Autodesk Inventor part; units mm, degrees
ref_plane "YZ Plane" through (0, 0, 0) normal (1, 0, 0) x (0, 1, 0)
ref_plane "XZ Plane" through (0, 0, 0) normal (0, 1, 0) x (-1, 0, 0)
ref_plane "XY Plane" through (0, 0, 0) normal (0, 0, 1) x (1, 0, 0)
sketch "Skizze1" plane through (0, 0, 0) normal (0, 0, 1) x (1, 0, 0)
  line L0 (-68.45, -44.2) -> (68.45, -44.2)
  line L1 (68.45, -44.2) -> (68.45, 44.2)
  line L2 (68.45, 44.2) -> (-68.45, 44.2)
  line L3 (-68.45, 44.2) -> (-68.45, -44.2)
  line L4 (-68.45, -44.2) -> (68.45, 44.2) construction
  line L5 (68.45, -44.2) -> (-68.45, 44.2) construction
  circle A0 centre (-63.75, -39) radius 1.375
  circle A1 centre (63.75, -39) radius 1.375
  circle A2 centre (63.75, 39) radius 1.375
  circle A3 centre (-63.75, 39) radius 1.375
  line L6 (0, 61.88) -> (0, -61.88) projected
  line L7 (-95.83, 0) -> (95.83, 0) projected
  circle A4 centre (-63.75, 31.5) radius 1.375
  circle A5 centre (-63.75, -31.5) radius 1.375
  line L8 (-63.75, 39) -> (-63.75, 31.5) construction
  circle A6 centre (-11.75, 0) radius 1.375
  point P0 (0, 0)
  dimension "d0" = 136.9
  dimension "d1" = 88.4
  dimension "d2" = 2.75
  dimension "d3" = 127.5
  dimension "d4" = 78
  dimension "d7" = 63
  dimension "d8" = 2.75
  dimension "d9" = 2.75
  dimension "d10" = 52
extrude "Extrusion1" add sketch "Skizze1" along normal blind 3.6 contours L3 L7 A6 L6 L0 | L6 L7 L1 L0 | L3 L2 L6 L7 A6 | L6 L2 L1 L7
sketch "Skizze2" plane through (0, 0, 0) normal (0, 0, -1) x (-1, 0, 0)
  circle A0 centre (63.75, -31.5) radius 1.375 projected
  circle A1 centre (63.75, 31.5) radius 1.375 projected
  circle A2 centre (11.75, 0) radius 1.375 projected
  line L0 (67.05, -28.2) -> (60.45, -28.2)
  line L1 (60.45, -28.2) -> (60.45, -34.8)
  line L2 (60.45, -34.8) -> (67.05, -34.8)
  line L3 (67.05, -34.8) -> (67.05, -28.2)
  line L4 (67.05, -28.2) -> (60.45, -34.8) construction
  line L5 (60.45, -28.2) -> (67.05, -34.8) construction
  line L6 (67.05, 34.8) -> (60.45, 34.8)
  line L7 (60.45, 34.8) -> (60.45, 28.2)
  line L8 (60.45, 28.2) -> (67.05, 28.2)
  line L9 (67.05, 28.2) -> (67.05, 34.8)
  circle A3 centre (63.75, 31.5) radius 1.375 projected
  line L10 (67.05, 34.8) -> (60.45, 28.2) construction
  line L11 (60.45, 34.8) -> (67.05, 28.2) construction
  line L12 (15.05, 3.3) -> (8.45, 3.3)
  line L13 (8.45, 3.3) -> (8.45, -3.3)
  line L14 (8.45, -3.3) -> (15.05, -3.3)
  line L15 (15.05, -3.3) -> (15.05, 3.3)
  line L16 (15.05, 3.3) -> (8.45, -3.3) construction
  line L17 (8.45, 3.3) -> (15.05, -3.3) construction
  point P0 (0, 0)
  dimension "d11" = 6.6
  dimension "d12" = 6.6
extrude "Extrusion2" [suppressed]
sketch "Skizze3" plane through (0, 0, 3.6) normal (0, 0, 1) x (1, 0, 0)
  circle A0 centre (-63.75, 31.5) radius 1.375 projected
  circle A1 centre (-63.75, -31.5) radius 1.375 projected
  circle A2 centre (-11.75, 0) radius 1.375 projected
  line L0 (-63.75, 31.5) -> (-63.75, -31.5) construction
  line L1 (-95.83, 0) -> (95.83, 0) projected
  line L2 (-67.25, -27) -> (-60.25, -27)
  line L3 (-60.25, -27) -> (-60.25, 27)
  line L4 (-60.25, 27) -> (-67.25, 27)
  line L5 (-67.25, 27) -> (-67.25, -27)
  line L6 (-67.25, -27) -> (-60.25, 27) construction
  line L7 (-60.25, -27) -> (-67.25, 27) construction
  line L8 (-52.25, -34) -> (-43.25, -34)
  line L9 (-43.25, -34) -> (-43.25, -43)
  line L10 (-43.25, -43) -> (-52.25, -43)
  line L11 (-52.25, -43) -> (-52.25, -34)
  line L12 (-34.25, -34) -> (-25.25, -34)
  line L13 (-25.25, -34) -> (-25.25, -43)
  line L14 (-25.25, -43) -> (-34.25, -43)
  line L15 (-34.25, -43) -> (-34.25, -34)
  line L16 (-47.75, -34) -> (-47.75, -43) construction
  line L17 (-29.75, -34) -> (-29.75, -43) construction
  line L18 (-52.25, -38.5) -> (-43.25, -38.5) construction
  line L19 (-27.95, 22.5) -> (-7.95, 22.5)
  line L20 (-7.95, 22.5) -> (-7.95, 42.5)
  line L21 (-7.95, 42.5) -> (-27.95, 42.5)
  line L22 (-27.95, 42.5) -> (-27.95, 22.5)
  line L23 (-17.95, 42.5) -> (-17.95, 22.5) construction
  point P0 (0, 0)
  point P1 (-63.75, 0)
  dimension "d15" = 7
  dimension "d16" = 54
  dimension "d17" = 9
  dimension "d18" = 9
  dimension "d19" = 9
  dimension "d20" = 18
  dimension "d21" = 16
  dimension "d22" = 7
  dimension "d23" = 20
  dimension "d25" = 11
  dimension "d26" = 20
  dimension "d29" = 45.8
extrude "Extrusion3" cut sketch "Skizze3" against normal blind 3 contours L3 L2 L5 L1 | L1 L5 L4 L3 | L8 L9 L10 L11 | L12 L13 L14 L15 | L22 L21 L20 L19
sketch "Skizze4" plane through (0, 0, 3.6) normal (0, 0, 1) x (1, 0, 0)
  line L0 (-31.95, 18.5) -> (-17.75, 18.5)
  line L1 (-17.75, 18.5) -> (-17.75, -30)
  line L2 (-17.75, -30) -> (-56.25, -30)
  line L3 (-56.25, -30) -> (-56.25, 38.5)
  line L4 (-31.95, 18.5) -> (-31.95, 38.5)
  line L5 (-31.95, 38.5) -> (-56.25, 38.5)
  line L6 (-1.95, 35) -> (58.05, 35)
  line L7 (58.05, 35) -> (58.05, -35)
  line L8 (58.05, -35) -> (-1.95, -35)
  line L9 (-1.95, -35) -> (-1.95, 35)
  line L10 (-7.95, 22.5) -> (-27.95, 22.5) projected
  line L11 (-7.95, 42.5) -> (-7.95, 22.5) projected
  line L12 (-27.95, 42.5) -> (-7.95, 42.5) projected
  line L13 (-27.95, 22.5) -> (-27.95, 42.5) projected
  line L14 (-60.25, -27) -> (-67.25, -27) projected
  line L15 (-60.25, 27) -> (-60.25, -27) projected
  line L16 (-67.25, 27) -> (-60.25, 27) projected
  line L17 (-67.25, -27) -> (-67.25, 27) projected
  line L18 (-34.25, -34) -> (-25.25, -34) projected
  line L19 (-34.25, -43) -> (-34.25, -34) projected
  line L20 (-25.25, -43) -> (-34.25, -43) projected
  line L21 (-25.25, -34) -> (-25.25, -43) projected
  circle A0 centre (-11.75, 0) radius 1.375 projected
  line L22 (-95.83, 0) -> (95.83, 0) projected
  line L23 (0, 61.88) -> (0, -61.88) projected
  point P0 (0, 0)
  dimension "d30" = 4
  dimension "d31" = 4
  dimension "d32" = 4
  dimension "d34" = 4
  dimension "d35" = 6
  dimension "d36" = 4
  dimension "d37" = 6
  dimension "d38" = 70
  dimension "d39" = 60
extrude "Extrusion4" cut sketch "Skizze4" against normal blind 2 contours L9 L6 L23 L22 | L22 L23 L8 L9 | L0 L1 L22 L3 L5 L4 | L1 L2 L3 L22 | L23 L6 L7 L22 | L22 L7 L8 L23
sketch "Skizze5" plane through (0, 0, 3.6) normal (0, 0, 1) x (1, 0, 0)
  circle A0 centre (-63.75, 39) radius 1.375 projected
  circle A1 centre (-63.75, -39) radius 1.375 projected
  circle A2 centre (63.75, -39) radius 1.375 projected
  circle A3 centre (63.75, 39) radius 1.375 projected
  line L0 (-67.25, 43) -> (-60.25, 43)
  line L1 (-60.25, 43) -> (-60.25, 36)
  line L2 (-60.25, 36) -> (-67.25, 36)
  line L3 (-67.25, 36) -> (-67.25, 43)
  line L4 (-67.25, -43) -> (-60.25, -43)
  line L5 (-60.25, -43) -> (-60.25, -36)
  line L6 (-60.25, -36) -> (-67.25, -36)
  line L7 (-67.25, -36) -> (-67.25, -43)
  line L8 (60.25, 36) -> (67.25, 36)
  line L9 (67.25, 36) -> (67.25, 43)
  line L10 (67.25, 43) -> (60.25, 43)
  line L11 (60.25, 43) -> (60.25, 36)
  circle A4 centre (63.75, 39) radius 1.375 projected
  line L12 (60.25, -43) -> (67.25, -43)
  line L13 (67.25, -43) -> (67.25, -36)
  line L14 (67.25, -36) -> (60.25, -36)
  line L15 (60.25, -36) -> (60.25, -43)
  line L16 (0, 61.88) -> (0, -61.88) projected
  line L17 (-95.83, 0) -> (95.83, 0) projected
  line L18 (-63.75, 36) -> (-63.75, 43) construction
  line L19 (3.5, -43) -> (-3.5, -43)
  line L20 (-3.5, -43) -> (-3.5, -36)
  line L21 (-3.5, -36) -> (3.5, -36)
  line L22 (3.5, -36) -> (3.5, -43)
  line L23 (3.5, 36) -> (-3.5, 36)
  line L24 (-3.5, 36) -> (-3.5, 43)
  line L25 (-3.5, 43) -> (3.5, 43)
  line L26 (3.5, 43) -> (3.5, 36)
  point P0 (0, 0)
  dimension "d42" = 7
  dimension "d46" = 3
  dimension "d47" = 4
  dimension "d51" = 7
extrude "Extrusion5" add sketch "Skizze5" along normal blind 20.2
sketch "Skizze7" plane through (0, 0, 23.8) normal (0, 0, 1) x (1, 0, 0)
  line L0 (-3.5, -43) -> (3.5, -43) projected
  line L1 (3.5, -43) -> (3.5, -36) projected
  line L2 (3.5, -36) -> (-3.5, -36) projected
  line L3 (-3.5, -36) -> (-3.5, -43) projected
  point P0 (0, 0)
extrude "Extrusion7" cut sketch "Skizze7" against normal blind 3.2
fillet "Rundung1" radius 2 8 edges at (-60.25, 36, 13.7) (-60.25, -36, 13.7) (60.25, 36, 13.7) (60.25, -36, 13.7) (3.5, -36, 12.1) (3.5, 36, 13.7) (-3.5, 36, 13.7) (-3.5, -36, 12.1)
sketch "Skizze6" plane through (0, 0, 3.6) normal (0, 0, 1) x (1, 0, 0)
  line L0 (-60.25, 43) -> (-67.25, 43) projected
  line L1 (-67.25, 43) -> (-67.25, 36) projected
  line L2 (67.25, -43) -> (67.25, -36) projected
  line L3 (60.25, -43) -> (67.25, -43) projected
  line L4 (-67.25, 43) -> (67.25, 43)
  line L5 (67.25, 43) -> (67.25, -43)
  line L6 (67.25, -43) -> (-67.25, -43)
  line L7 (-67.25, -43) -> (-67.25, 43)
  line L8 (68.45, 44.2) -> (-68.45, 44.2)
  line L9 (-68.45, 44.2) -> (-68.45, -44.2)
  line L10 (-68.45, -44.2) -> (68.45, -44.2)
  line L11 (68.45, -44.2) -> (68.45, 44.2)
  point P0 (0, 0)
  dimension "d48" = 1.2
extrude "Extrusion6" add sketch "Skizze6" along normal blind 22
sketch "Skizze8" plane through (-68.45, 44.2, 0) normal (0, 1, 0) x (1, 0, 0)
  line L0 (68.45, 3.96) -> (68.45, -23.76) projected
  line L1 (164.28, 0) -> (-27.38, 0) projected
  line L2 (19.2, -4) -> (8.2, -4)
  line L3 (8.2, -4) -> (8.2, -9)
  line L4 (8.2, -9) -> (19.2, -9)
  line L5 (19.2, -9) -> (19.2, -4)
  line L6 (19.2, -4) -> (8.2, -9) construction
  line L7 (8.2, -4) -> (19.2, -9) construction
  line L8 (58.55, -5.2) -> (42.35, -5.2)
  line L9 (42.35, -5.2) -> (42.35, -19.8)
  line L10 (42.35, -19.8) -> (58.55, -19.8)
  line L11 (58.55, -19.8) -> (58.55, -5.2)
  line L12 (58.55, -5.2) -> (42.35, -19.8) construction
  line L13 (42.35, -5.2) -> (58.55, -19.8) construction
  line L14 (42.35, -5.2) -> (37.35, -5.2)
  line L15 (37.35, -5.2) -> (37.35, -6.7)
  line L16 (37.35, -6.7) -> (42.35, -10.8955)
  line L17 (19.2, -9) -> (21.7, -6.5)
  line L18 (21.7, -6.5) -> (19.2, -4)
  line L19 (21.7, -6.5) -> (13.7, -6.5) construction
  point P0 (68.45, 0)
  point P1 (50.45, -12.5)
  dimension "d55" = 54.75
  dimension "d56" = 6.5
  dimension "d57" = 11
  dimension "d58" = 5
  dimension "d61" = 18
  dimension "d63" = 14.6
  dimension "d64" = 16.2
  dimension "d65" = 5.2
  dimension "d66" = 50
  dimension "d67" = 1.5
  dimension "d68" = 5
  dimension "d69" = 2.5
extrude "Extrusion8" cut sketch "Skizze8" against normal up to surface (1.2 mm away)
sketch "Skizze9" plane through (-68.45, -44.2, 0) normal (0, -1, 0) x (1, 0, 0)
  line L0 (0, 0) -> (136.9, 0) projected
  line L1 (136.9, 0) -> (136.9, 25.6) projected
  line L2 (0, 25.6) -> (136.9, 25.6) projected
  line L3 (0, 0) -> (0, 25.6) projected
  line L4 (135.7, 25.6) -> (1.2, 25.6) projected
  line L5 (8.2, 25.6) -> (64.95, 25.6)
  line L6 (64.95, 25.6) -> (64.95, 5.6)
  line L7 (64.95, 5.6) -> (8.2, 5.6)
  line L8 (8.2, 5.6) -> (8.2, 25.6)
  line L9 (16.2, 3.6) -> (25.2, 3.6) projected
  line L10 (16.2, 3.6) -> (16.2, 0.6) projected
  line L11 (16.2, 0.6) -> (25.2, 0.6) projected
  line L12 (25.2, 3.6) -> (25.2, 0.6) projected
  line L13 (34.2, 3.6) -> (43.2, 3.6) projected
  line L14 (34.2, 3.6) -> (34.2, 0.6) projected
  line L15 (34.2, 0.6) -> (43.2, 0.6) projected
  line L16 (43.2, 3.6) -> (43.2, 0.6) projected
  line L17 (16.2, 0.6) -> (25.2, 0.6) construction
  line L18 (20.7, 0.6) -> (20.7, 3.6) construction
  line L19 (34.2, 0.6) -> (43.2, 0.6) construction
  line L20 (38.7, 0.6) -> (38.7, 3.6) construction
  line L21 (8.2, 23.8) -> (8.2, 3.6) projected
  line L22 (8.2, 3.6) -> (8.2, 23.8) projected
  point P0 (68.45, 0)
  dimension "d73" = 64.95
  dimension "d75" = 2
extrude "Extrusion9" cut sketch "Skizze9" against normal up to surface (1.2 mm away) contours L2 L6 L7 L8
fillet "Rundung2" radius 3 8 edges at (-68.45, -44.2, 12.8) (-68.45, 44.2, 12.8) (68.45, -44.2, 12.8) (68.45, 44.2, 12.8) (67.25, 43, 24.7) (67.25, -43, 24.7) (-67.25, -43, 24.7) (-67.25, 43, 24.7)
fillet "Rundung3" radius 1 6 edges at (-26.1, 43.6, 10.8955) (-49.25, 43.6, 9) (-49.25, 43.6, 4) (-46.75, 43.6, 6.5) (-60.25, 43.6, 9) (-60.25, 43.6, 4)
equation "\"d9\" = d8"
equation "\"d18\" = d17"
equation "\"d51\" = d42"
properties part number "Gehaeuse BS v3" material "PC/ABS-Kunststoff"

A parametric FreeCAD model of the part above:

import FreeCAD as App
import Part
import Sketcher

V = App.Vector
Q = App.Units.Quantity


def edges_at(feature, points):
    """Names of the edges that pass closest to the given points."""
    edges = feature.Shape.Edges
    near = lambda p: min(range(len(edges)), key=lambda i: edges[i].distToShape(Part.Vertex(*p))[0])
    return sorted({f"Edge{near(p) + 1}" for p in points})

doc = App.newDocument("Part")
body = doc.addObject("PartDesign::Body", "Body")

sketch1 = body.newObject("Sketcher::SketchObject", "Sketch")
sketch1.AttachmentSupport = (doc.getObject("XY_Plane"), [""])
sketch1.MapMode = "FlatFace"
sketch1.addGeometry(Part.LineSegment(V(-68.5, -44.2, 0), V(68.5, -44.2, 0)), False)
sketch1.addGeometry(Part.LineSegment(V(68.5, -44.2, 0), V(68.5, 44.2, 0)), False)
sketch1.addGeometry(Part.LineSegment(V(68.5, 44.2, 0), V(-68.5, 44.2, 0)), False)
sketch1.addGeometry(Part.LineSegment(V(-68.5, 44.2, 0), V(-68.5, -44.2, 0)), False)
sketch1.addGeometry(Part.Circle(V(-11.8, 0, 0), V(0, 0, 1), 1.4), False)
sketch1.addGeometry(Part.Circle(V(-63.8, -39, 0), V(0, 0, 1), 1.4), False)
sketch1.addGeometry(Part.Circle(V(-63.8, -31.5, 0), V(0, 0, 1), 1.4), False)
sketch1.addGeometry(Part.Circle(V(-63.8, 31.5, 0), V(0, 0, 1), 1.4), False)
sketch1.addGeometry(Part.Circle(V(-63.8, 39, 0), V(0, 0, 1), 1.4), False)
sketch1.addGeometry(Part.Circle(V(63.8, -39, 0), V(0, 0, 1), 1.4), False)
sketch1.addGeometry(Part.Circle(V(63.8, 39, 0), V(0, 0, 1), 1.4), False)
sketch1.addConstraint(Sketcher.Constraint("Coincident", 0, 2, 1, 1))
sketch1.addConstraint(Sketcher.Constraint("Coincident", 1, 2, 2, 1))
sketch1.addConstraint(Sketcher.Constraint("Coincident", 2, 2, 3, 1))
sketch1.addConstraint(Sketcher.Constraint("Coincident", 3, 2, 0, 1))
sketch1.addConstraint(Sketcher.Constraint("Horizontal", 0))
sketch1.addConstraint(Sketcher.Constraint("Vertical", 1))
sketch1.addConstraint(Sketcher.Constraint("Horizontal", 2))
sketch1.addConstraint(Sketcher.Constraint("Vertical", 3))
sketch1.addConstraint(Sketcher.Constraint("Equal", 4, 5))
sketch1.addConstraint(Sketcher.Constraint("Equal", 5, 6))
sketch1.addConstraint(Sketcher.Constraint("Equal", 6, 7))
sketch1.addConstraint(Sketcher.Constraint("Equal", 7, 8))
sketch1.addConstraint(Sketcher.Constraint("Equal", 8, 9))
sketch1.addConstraint(Sketcher.Constraint("Equal", 9, 10))
sketch1.addConstraint(Sketcher.Constraint("Symmetric", 8, 3, 9, 3, -1, 1))
sketch1.addConstraint(Sketcher.Constraint("Symmetric", 5, 3, 10, 3, -1, 1))
sketch1.addConstraint(Sketcher.Constraint("Symmetric", 0, 2, 2, 2, -1, 1))
sketch1.addConstraint(Sketcher.Constraint("Symmetric", 5, 3, 9, 3, -2))
sketch1.addConstraint(Sketcher.Constraint("Symmetric", 6, 3, 7, 3, -1))
sketch1.addConstraint(Sketcher.Constraint("PointOnObject", 4, 3, -1))
sketch1.addConstraint(Sketcher.Constraint("Vertical", 5, 3, 6, 3))
sketch1.addConstraint(Sketcher.Constraint("Diameter", 4, Q("2.75 mm")))
sketch1.addConstraint(Sketcher.Constraint("DistanceX", 0, 1, 0, 2, Q("136.9 mm")))
sketch1.addConstraint(Sketcher.Constraint("DistanceY", 1, 1, 1, 2, Q("88.4 mm")))
sketch1.addConstraint(Sketcher.Constraint("DistanceX", 5, 3, 4, 3, Q("52 mm")))
sketch1.addConstraint(Sketcher.Constraint("DistanceY", 6, 3, 7, 3, Q("63 mm")))
sketch1.addConstraint(Sketcher.Constraint("DistanceY", 5, 3, 8, 3, Q("78 mm")))
sketch1.addConstraint(Sketcher.Constraint("DistanceX", 5, 3, 9, 3, Q("127.5 mm")))
pad1 = body.newObject("PartDesign::Pad", "Pad")
pad1.Profile = sketch1
pad1.Length = 3.6

sketch2 = body.newObject("Sketcher::SketchObject", "Sketch001")
sketch2.AttachmentSupport = (doc.getObject("XY_Plane"), [""])
sketch2.MapMode = "FlatFace"
sketch2.AttachmentOffset = App.Placement(V(0, 0, 3.6), App.Rotation())
sketch2.addGeometry(Part.LineSegment(V(-60, -27, 0), V(-60, 27, 0)), False)
sketch2.addGeometry(Part.LineSegment(V(-60, 27, 0), V(-67, 27, 0)), False)
sketch2.addGeometry(Part.LineSegment(V(-67, 27, 0), V(-67, -27, 0)), False)
sketch2.addGeometry(Part.LineSegment(V(-67, -27, 0), V(-60, -27, 0)), False)
sketch2.addGeometry(Part.LineSegment(V(-43, -34, 0), V(-52, -34, 0)), False)
sketch2.addGeometry(Part.LineSegment(V(-52, -34, 0), V(-52, -43, 0)), False)
sketch2.addGeometry(Part.LineSegment(V(-52, -43, 0), V(-43, -43, 0)), False)
sketch2.addGeometry(Part.LineSegment(V(-43, -43, 0), V(-43, -34, 0)), False)
sketch2.addGeometry(Part.LineSegment(V(-25, -34, 0), V(-34, -34, 0)), False)
sketch2.addGeometry(Part.LineSegment(V(-34, -34, 0), V(-34, -43, 0)), False)
sketch2.addGeometry(Part.LineSegment(V(-34, -43, 0), V(-25, -43, 0)), False)
sketch2.addGeometry(Part.LineSegment(V(-25, -43, 0), V(-25, -34, 0)), False)
sketch2.addGeometry(Part.LineSegment(V(-28, 42, 0), V(-28, 22, 0)), False)
sketch2.addGeometry(Part.LineSegment(V(-28, 22, 0), V(-8, 22, 0)), False)
sketch2.addGeometry(Part.LineSegment(V(-8, 22, 0), V(-8, 42, 0)), False)
sketch2.addGeometry(Part.LineSegment(V(-8, 42, 0), V(-28, 42, 0)), False)
sketch2.addConstraint(Sketcher.Constraint("Coincident", 0, 2, 1, 1))
sketch2.addConstraint(Sketcher.Constraint("Coincident", 1, 2, 2, 1))
sketch2.addConstraint(Sketcher.Constraint("Coincident", 2, 2, 3, 1))
sketch2.addConstraint(Sketcher.Constraint("Coincident", 3, 2, 0, 1))
sketch2.addConstraint(Sketcher.Constraint("Coincident", 4, 2, 5, 1))
sketch2.addConstraint(Sketcher.Constraint("Coincident", 5, 2, 6, 1))
sketch2.addConstraint(Sketcher.Constraint("Coincident", 6, 2, 7, 1))
sketch2.addConstraint(Sketcher.Constraint("Coincident", 7, 2, 4, 1))
sketch2.addConstraint(Sketcher.Constraint("Coincident", 8, 2, 9, 1))
sketch2.addConstraint(Sketcher.Constraint("Coincident", 9, 2, 10, 1))
sketch2.addConstraint(Sketcher.Constraint("Coincident", 10, 2, 11, 1))
sketch2.addConstraint(Sketcher.Constraint("Coincident", 11, 2, 8, 1))
sketch2.addConstraint(Sketcher.Constraint("Coincident", 12, 2, 13, 1))
sketch2.addConstraint(Sketcher.Constraint("Coincident", 13, 2, 14, 1))
sketch2.addConstraint(Sketcher.Constraint("Coincident", 14, 2, 15, 1))
sketch2.addConstraint(Sketcher.Constraint("Coincident", 15, 2, 12, 1))
sketch2.addConstraint(Sketcher.Constraint("Vertical", 0))
sketch2.addConstraint(Sketcher.Constraint("Horizontal", 1))
sketch2.addConstraint(Sketcher.Constraint("Vertical", 2))
sketch2.addConstraint(Sketcher.Constraint("Horizontal", 3))
sketch2.addConstraint(Sketcher.Constraint("Horizontal", 4))
sketch2.addConstraint(Sketcher.Constraint("Vertical", 5))
sketch2.addConstraint(Sketcher.Constraint("Horizontal", 6))
sketch2.addConstraint(Sketcher.Constraint("Vertical", 7))
sketch2.addConstraint(Sketcher.Constraint("Horizontal", 8))
sketch2.addConstraint(Sketcher.Constraint("Vertical", 9))
sketch2.addConstraint(Sketcher.Constraint("Horizontal", 10))
sketch2.addConstraint(Sketcher.Constraint("Vertical", 11))
sketch2.addConstraint(Sketcher.Constraint("Vertical", 12))
sketch2.addConstraint(Sketcher.Constraint("Horizontal", 13))
sketch2.addConstraint(Sketcher.Constraint("Vertical", 14))
sketch2.addConstraint(Sketcher.Constraint("Horizontal", 15))
sketch2.addConstraint(Sketcher.Constraint("Horizontal", 7, 2, 8, 2))
sketch2.addConstraint(Sketcher.Constraint("Horizontal", 6, 2, 9, 2))
sketch2.addConstraint(Sketcher.Constraint("Equal", 6, 8))
sketch2.addConstraint(Sketcher.Constraint("Equal", 10, 5))
sketch2.addConstraint(Sketcher.Constraint("Equal", 15, 12))
sketch2.addConstraint(Sketcher.Constraint("DistanceX", 1, 2, 1, 1, Q("7 mm")))
sketch2.addConstraint(Sketcher.Constraint("DistanceX", 4, 2, 4, 1, Q("9 mm")))
sketch2.addConstraint(Sketcher.Constraint("DistanceX", 13, 1, 13, 2, Q("20 mm")))
sketch2.addConstraint(Sketcher.Constraint("DistanceY", 0, 1, 0, 2, Q("54 mm")))
sketch2.addConstraint(Sketcher.Constraint("DistanceY", 4, 2, 3, 2, Q("7 mm")))
sketch2.addConstraint(Sketcher.Constraint("DistanceX", 7, 2, 8, 2, Q("9 mm")))
sketch2.addConstraint(Sketcher.Constraint("DistanceY", -1, 1, 0, 2, Q("27 mm")))
sketch2.addConstraint(Sketcher.Constraint("DistanceX", 3, 2, 4, 2, Q("8 mm")))
sketch2.addConstraint(Sketcher.Constraint("DistanceY", -1, 1, 12, 2, Q("22.5 mm")))
sketch2.addConstraint(Sketcher.Constraint("DistanceX", 0, 2, 12, 2, Q("32.3 mm")))
sketch2.addConstraint(Sketcher.Constraint("DistanceX", 0, 2, -1, 1, Q("60.25 mm")))
pocket1 = body.newObject("PartDesign::Pocket", "Pocket")
pocket1.Profile = sketch2
pocket1.Length = 3

sketch3 = body.newObject("Sketcher::SketchObject", "Sketch002")
sketch3.AttachmentSupport = (doc.getObject("XY_Plane"), [""])
sketch3.MapMode = "FlatFace"
sketch3.AttachmentOffset = App.Placement(V(0, 0, 3.6), App.Rotation())
sketch3.addGeometry(Part.LineSegment(V(-2, 35, 0), V(-2, -35, 0)), False)
sketch3.addGeometry(Part.LineSegment(V(-2, -35, 0), V(58, -35, 0)), False)
sketch3.addGeometry(Part.LineSegment(V(58, -35, 0), V(58, 35, 0)), False)
sketch3.addGeometry(Part.LineSegment(V(58, 35, 0), V(-2, 35, 0)), False)
sketch3.addGeometry(Part.LineSegment(V(-18, 18, 0), V(-32, 18, 0)), False)
sketch3.addGeometry(Part.LineSegment(V(-32, 18, 0), V(-32, 38, 0)), False)
sketch3.addGeometry(Part.LineSegment(V(-32, 38, 0), V(-56, 38, 0)), False)
sketch3.addGeometry(Part.LineSegment(V(-56, 38, 0), V(-56, -30, 0)), False)
sketch3.addGeometry(Part.LineSegment(V(-56, -30, 0), V(-18, -30, 0)), False)
sketch3.addGeometry(Part.LineSegment(V(-18, -30, 0), V(-18, 18, 0)), False)
sketch3.addConstraint(Sketcher.Constraint("Coincident", 0, 2, 1, 1))
sketch3.addConstraint(Sketcher.Constraint("Coincident", 1, 2, 2, 1))
sketch3.addConstraint(Sketcher.Constraint("Coincident", 2, 2, 3, 1))
sketch3.addConstraint(Sketcher.Constraint("Coincident", 3, 2, 0, 1))
sketch3.addConstraint(Sketcher.Constraint("Coincident", 4, 2, 5, 1))
sketch3.addConstraint(Sketcher.Constraint("Coincident", 5, 2, 6, 1))
sketch3.addConstraint(Sketcher.Constraint("Coincident", 6, 2, 7, 1))
sketch3.addConstraint(Sketcher.Constraint("Coincident", 7, 2, 8, 1))
sketch3.addConstraint(Sketcher.Constraint("Coincident", 8, 2, 9, 1))
sketch3.addConstraint(Sketcher.Constraint("Coincident", 9, 2, 4, 1))
sketch3.addConstraint(Sketcher.Constraint("Vertical", 0))
sketch3.addConstraint(Sketcher.Constraint("Horizontal", 1))
sketch3.addConstraint(Sketcher.Constraint("Vertical", 2))
sketch3.addConstraint(Sketcher.Constraint("Horizontal", 3))
sketch3.addConstraint(Sketcher.Constraint("Horizontal", 4))
sketch3.addConstraint(Sketcher.Constraint("Vertical", 5))
sketch3.addConstraint(Sketcher.Constraint("Horizontal", 6))
sketch3.addConstraint(Sketcher.Constraint("Vertical", 7))
sketch3.addConstraint(Sketcher.Constraint("Horizontal", 8))
sketch3.addConstraint(Sketcher.Constraint("Vertical", 9))
sketch3.addConstraint(Sketcher.Constraint("DistanceX", 1, 1, 1, 2, Q("60 mm")))
sketch3.addConstraint(Sketcher.Constraint("DistanceY", 0, 2, 0, 1, Q("70 mm")))
sketch3.addConstraint(Sketcher.Constraint("DistanceY", 5, 1, 5, 2, Q("20 mm")))
sketch3.addConstraint(Sketcher.Constraint("DistanceX", 4, 2, 4, 1, Q("14.2 mm")))
sketch3.addConstraint(Sketcher.Constraint("DistanceX", 6, 2, 6, 1, Q("24.3 mm")))
sketch3.addConstraint(Sketcher.Constraint("DistanceY", 7, 2, 7, 1, Q("68.5 mm")))
sketch3.addConstraint(Sketcher.Constraint("DistanceY", 0, 2, -1, 1, Q("35 mm")))
sketch3.addConstraint(Sketcher.Constraint("DistanceY", 7, 2, -1, 1, Q("30 mm")))
sketch3.addConstraint(Sketcher.Constraint("DistanceX", 4, 2, 3, 2, Q("30 mm")))
sketch3.addConstraint(Sketcher.Constraint("DistanceX", 0, 2, -1, 1, Q("1.95 mm")))
pocket2 = body.newObject("PartDesign::Pocket", "Pocket001")
pocket2.Profile = sketch3
pocket2.Length = 2

sketch4 = body.newObject("Sketcher::SketchObject", "Sketch003")
sketch4.AttachmentSupport = (doc.getObject("XY_Plane"), [""])
sketch4.MapMode = "FlatFace"
sketch4.AttachmentOffset = App.Placement(V(0, 0, 3.6), App.Rotation())
sketch4.addGeometry(Part.LineSegment(V(-60.2, 43, 0), V(-67.2, 43, 0)), False)
sketch4.addGeometry(Part.LineSegment(V(-67.2, 43, 0), V(-67.2, 36, 0)), False)
sketch4.addGeometry(Part.LineSegment(V(-67.2, 36, 0), V(-60.2, 36, 0)), False)
sketch4.addGeometry(Part.LineSegment(V(-60.2, 36, 0), V(-60.2, 43, 0)), False)
sketch4.addGeometry(Part.Circle(V(-63.8, 39, 0), V(0, 0, 1), 1.4), False)
sketch4.addGeometry(Part.LineSegment(V(-67.2, -36, 0), V(-67.2, -43, 0)), False)
sketch4.addGeometry(Part.LineSegment(V(-67.2, -43, 0), V(-60.2, -43, 0)), False)
sketch4.addGeometry(Part.LineSegment(V(-60.2, -43, 0), V(-60.2, -36, 0)), False)
sketch4.addGeometry(Part.LineSegment(V(-60.2, -36, 0), V(-67.2, -36, 0)), False)
sketch4.addGeometry(Part.Circle(V(-63.8, -39, 0), V(0, 0, 1), 1.4), False)
sketch4.addGeometry(Part.LineSegment(V(60.2, 43, 0), V(60.2, 36, 0)), False)
sketch4.addGeometry(Part.LineSegment(V(60.2, 36, 0), V(67.2, 36, 0)), False)
sketch4.addGeometry(Part.LineSegment(V(67.2, 36, 0), V(67.2, 43, 0)), False)
sketch4.addGeometry(Part.LineSegment(V(67.2, 43, 0), V(60.2, 43, 0)), False)
sketch4.addGeometry(Part.Circle(V(63.8, 39, 0), V(0, 0, 1), 1.4), False)
sketch4.addGeometry(Part.LineSegment(V(60.2, -36, 0), V(60.2, -43, 0)), False)
sketch4.addGeometry(Part.LineSegment(V(60.2, -43, 0), V(67.2, -43, 0)), False)
sketch4.addGeometry(Part.LineSegment(V(67.2, -43, 0), V(67.2, -36, 0)), False)
sketch4.addGeometry(Part.LineSegment(V(67.2, -36, 0), V(60.2, -36, 0)), False)
sketch4.addGeometry(Part.Circle(V(63.8, -39, 0), V(0, 0, 1), 1.4), False)
sketch4.addGeometry(Part.LineSegment(V(3.5, 43, 0), V(-3.5, 43, 0)), False)
sketch4.addGeometry(Part.LineSegment(V(-3.5, 43, 0), V(-3.5, 36, 0)), False)
sketch4.addGeometry(Part.LineSegment(V(-3.5, 36, 0), V(3.5, 36, 0)), False)
sketch4.addGeometry(Part.LineSegment(V(3.5, 36, 0), V(3.5, 43, 0)), False)
sketch4.addGeometry(Part.LineSegment(V(3.5, -36, 0), V(-3.5, -36, 0)), False)
sketch4.addGeometry(Part.LineSegment(V(-3.5, -36, 0), V(-3.5, -43, 0)), False)
sketch4.addGeometry(Part.LineSegment(V(-3.5, -43, 0), V(3.5, -43, 0)), False)
sketch4.addGeometry(Part.LineSegment(V(3.5, -43, 0), V(3.5, -36, 0)), False)
sketch4.addConstraint(Sketcher.Constraint("Coincident", 0, 2, 1, 1))
sketch4.addConstraint(Sketcher.Constraint("Coincident", 1, 2, 2, 1))
sketch4.addConstraint(Sketcher.Constraint("Coincident", 2, 2, 3, 1))
sketch4.addConstraint(Sketcher.Constraint("Coincident", 3, 2, 0, 1))
sketch4.addConstraint(Sketcher.Constraint("Coincident", 5, 2, 6, 1))
sketch4.addConstraint(Sketcher.Constraint("Coincident", 6, 2, 7, 1))
sketch4.addConstraint(Sketcher.Constraint("Coincident", 7, 2, 8, 1))
sketch4.addConstraint(Sketcher.Constraint("Coincident", 8, 2, 5, 1))
sketch4.addConstraint(Sketcher.Constraint("Coincident", 10, 2, 11, 1))
sketch4.addConstraint(Sketcher.Constraint("Coincident", 11, 2, 12, 1))
sketch4.addConstraint(Sketcher.Constraint("Coincident", 12, 2, 13, 1))
sketch4.addConstraint(Sketcher.Constraint("Coincident", 13, 2, 10, 1))
sketch4.addConstraint(Sketcher.Constraint("Coincident", 15, 2, 16, 1))
sketch4.addConstraint(Sketcher.Constraint("Coincident", 16, 2, 17, 1))
sketch4.addConstraint(Sketcher.Constraint("Coincident", 17, 2, 18, 1))
sketch4.addConstraint(Sketcher.Constraint("Coincident", 18, 2, 15, 1))
sketch4.addConstraint(Sketcher.Constraint("Coincident", 20, 2, 21, 1))
sketch4.addConstraint(Sketcher.Constraint("Coincident", 21, 2, 22, 1))
sketch4.addConstraint(Sketcher.Constraint("Coincident", 22, 2, 23, 1))
sketch4.addConstraint(Sketcher.Constraint("Coincident", 23, 2, 20, 1))
sketch4.addConstraint(Sketcher.Constraint("Coincident", 24, 2, 25, 1))
sketch4.addConstraint(Sketcher.Constraint("Coincident", 25, 2, 26, 1))
sketch4.addConstraint(Sketcher.Constraint("Coincident", 26, 2, 27, 1))
sketch4.addConstraint(Sketcher.Constraint("Coincident", 27, 2, 24, 1))
sketch4.addConstraint(Sketcher.Constraint("Horizontal", 0))
sketch4.addConstraint(Sketcher.Constraint("Vertical", 1))
sketch4.addConstraint(Sketcher.Constraint("Horizontal", 2))
sketch4.addConstraint(Sketcher.Constraint("Vertical", 3))
sketch4.addConstraint(Sketcher.Constraint("Vertical", 5))
sketch4.addConstraint(Sketcher.Constraint("Horizontal", 6))
sketch4.addConstraint(Sketcher.Constraint("Vertical", 7))
sketch4.addConstraint(Sketcher.Constraint("Horizontal", 8))
sketch4.addConstraint(Sketcher.Constraint("Vertical", 10))
sketch4.addConstraint(Sketcher.Constraint("Horizontal", 11))
sketch4.addConstraint(Sketcher.Constraint("Vertical", 12))
sketch4.addConstraint(Sketcher.Constraint("Horizontal", 13))
sketch4.addConstraint(Sketcher.Constraint("Vertical", 15))
sketch4.addConstraint(Sketcher.Constraint("Horizontal", 16))
sketch4.addConstraint(Sketcher.Constraint("Vertical", 17))
sketch4.addConstraint(Sketcher.Constraint("Horizontal", 18))
sketch4.addConstraint(Sketcher.Constraint("Horizontal", 20))
sketch4.addConstraint(Sketcher.Constraint("Vertical", 21))
sketch4.addConstraint(Sketcher.Constraint("Horizontal", 22))
sketch4.addConstraint(Sketcher.Constraint("Vertical", 23))
sketch4.addConstraint(Sketcher.Constraint("Horizontal", 24))
sketch4.addConstraint(Sketcher.Constraint("Vertical", 25))
sketch4.addConstraint(Sketcher.Constraint("Horizontal", 26))
sketch4.addConstraint(Sketcher.Constraint("Vertical", 27))
sketch4.addConstraint(Sketcher.Constraint("Equal", 4, 9))
sketch4.addConstraint(Sketcher.Constraint("Equal", 9, 14))
sketch4.addConstraint(Sketcher.Constraint("Equal", 14, 19))
sketch4.addConstraint(Sketcher.Constraint("Symmetric", 9, 3, 14, 3, -1, 1))
sketch4.addConstraint(Sketcher.Constraint("Symmetric", 4, 3, 19, 3, -1, 1))
sketch4.addConstraint(Sketcher.Constraint("Symmetric", 7, 2, 10, 2, -1, 1))
sketch4.addConstraint(Sketcher.Constraint("Symmetric", 5, 2, 12, 2, -1, 1))
sketch4.addConstraint(Sketcher.Constraint("Symmetric", 3, 2, 15, 2, -1, 1))
sketch4.addConstraint(Sketcher.Constraint("Symmetric", 1, 2, 17, 2, -1, 1))
sketch4.addConstraint(Sketcher.Constraint("Symmetric", 22, 2, 24, 2, -1, 1))
sketch4.addConstraint(Sketcher.Constraint("Symmetric", 20, 2, 26, 2, -1, 1))
sketch4.addConstraint(Sketcher.Constraint("Symmetric", 4, 3, 14, 3, -2))
sketch4.addConstraint(Sketcher.Constraint("Symmetric", 2, 2, 10, 2, -2))
sketch4.addConstraint(Sketcher.Constraint("Symmetric", 0, 2, 12, 2, -2))
sketch4.addConstraint(Sketcher.Constraint("Horizontal", 13, 2, 20, 2))
sketch4.addConstraint(Sketcher.Constraint("Horizontal", 11, 2, 21, 2))
sketch4.addConstraint(Sketcher.Constraint("Vertical", 21, 2, 24, 2))
sketch4.addConstraint(Sketcher.Constraint("Equal", 18, 20))
sketch4.addConstraint(Sketcher.Constraint("Equal", 26, 1))
sketch4.addConstraint(Sketcher.Constraint("DistanceX", 0, 2, 0, 1, Q("7 mm")))
sketch4.addConstraint(Sketcher.Constraint("DistanceY", 4, 3, 0, 2, Q("4 mm")))
sketch4.addConstraint(Sketcher.Constraint("Diameter", 4, Q("2.75 mm")))
sketch4.addConstraint(Sketcher.Constraint("DistanceY", -1, 1, 4, 3, Q("39 mm")))
sketch4.addConstraint(Sketcher.Constraint("DistanceX", 0, 2, 14, 3, Q("131 mm")))
sketch4.addConstraint(Sketcher.Constraint("DistanceX", 4, 3, 14, 3, Q("127.5 mm")))
pad2 = body.newObject("PartDesign::Pad", "Pad001")
pad2.Profile = sketch4
pad2.Length = 20.2

sketch5 = body.newObject("Sketcher::SketchObject", "Sketch004")
sketch5.AttachmentSupport = (doc.getObject("XY_Plane"), [""])
sketch5.MapMode = "FlatFace"
sketch5.AttachmentOffset = App.Placement(V(0, 0, 23.8), App.Rotation())
sketch5.addGeometry(Part.LineSegment(V(-4, -36, 0), V(-4, -43, 0)), False)
sketch5.addGeometry(Part.LineSegment(V(-4, -43, 0), V(4, -43, 0)), False)
sketch5.addGeometry(Part.LineSegment(V(4, -43, 0), V(4, -36, 0)), False)
sketch5.addGeometry(Part.LineSegment(V(4, -36, 0), V(-4, -36, 0)), False)
sketch5.addConstraint(Sketcher.Constraint("Coincident", 0, 2, 1, 1))
sketch5.addConstraint(Sketcher.Constraint("Coincident", 1, 2, 2, 1))
sketch5.addConstraint(Sketcher.Constraint("Coincident", 2, 2, 3, 1))
sketch5.addConstraint(Sketcher.Constraint("Coincident", 3, 2, 0, 1))
sketch5.addConstraint(Sketcher.Constraint("Vertical", 0))
sketch5.addConstraint(Sketcher.Constraint("Horizontal", 1))
sketch5.addConstraint(Sketcher.Constraint("Vertical", 2))
sketch5.addConstraint(Sketcher.Constraint("Horizontal", 3))
sketch5.addConstraint(Sketcher.Constraint("Equal", 3, 0))
sketch5.addConstraint(Sketcher.Constraint("DistanceX", 1, 1, 1, 2, Q("7 mm")))
sketch5.addConstraint(Sketcher.Constraint("DistanceY", 0, 2, -1, 1, Q("43 mm")))
sketch5.addConstraint(Sketcher.Constraint("DistanceX", 0, 2, -1, 1, Q("3.5 mm")))
pocket3 = body.newObject("PartDesign::Pocket", "Pocket002")
pocket3.Profile = sketch5
pocket3.Length = 3.2
doc.recompute()

fillet = body.newObject("PartDesign::Fillet", "Fillet")
fillet.Base = (pocket3, edges_at(pocket3, [
    (-60.25, 36, 13.7),
    (-60.25, -36, 13.7),
    (60.25, 36, 13.7),
    (60.25, -36, 13.7),
    (3.5, -36, 12.1),
    (3.5, 36, 13.7),
    (-3.5, 36, 13.7),
    (-3.5, -36, 12.1),
]))
fillet.Radius = 2

sketch6 = body.newObject("Sketcher::SketchObject", "Sketch005")
sketch6.AttachmentSupport = (doc.getObject("XY_Plane"), [""])
sketch6.MapMode = "FlatFace"
sketch6.AttachmentOffset = App.Placement(V(0, 0, 3.6), App.Rotation())
sketch6.addGeometry(Part.LineSegment(V(68, -44, 0), V(68, 44, 0)), False)
sketch6.addGeometry(Part.LineSegment(V(68, 44, 0), V(-68, 44, 0)), False)
sketch6.addGeometry(Part.LineSegment(V(-68, 44, 0), V(-68, -44, 0)), False)
sketch6.addGeometry(Part.LineSegment(V(-68, -44, 0), V(68, -44, 0)), False)
sketch6.addGeometry(Part.LineSegment(V(-67, 43, 0), V(67, 43, 0)), False)
sketch6.addGeometry(Part.LineSegment(V(67, 43, 0), V(67, -43, 0)), False)
sketch6.addGeometry(Part.LineSegment(V(67, -43, 0), V(-67, -43, 0)), False)
sketch6.addGeometry(Part.LineSegment(V(-67, -43, 0), V(-67, 43, 0)), False)
sketch6.addConstraint(Sketcher.Constraint("Coincident", 0, 2, 1, 1))
sketch6.addConstraint(Sketcher.Constraint("Coincident", 1, 2, 2, 1))
sketch6.addConstraint(Sketcher.Constraint("Coincident", 2, 2, 3, 1))
sketch6.addConstraint(Sketcher.Constraint("Coincident", 3, 2, 0, 1))
sketch6.addConstraint(Sketcher.Constraint("Coincident", 4, 2, 5, 1))
sketch6.addConstraint(Sketcher.Constraint("Coincident", 5, 2, 6, 1))
sketch6.addConstraint(Sketcher.Constraint("Coincident", 6, 2, 7, 1))
sketch6.addConstraint(Sketcher.Constraint("Coincident", 7, 2, 4, 1))
sketch6.addConstraint(Sketcher.Constraint("Vertical", 0))
sketch6.addConstraint(Sketcher.Constraint("Horizontal", 1))
sketch6.addConstraint(Sketcher.Constraint("Vertical", 2))
sketch6.addConstraint(Sketcher.Constraint("Horizontal", 3))
sketch6.addConstraint(Sketcher.Constraint("Horizontal", 4))
sketch6.addConstraint(Sketcher.Constraint("Vertical", 5))
sketch6.addConstraint(Sketcher.Constraint("Horizontal", 6))
sketch6.addConstraint(Sketcher.Constraint("Vertical", 7))
sketch6.addConstraint(Sketcher.Constraint("Symmetric", 0, 2, 2, 2, -1, 1))
sketch6.addConstraint(Sketcher.Constraint("Symmetric", 4, 2, 6, 2, -1, 1))
sketch6.addConstraint(Sketcher.Constraint("DistanceX", 4, 2, 0, 2, Q("1.2 mm")))
sketch6.addConstraint(Sketcher.Constraint("DistanceY", 4, 2, 0, 2, Q("1.2 mm")))
sketch6.addConstraint(Sketcher.Constraint("DistanceY", 5, 2, 5, 1, Q("86 mm")))
sketch6.addConstraint(Sketcher.Constraint("DistanceX", 1, 2, 1, 1, Q("136.9 mm")))
pad3 = body.newObject("PartDesign::Pad", "Pad002")
pad3.Profile = sketch6
pad3.Length = 22

sketch7 = body.newObject("Sketcher::SketchObject", "Sketch006")
sketch7.AttachmentSupport = (doc.getObject("XZ_Plane"), [""])
sketch7.MapMode = "FlatFace"
sketch7.AttachmentOffset = App.Placement(V(0, 0, -44.2), App.Rotation())
sketch7.addGeometry(Part.LineSegment(V(-60.2, 9, 0), V(-49.2, 9, 0)), False)
sketch7.addGeometry(Part.LineSegment(V(-49.2, 9, 0), V(-46.8, 6.5, 0)), False)
sketch7.addGeometry(Part.LineSegment(V(-46.8, 6.5, 0), V(-49.2, 4, 0)), False)
sketch7.addGeometry(Part.LineSegment(V(-49.2, 4, 0), V(-60.2, 4, 0)), False)
sketch7.addGeometry(Part.LineSegment(V(-60.2, 4, 0), V(-60.2, 9, 0)), False)
sketch7.addGeometry(Part.LineSegment(V(-9.9, 19.8, 0), V(-9.9, 5.2, 0)), False)
sketch7.addGeometry(Part.LineSegment(V(-9.9, 5.2, 0), V(-31.1, 5.2, 0)), False)
sketch7.addGeometry(Part.LineSegment(V(-31.1, 5.2, 0), V(-31.1, 6.7, 0)), False)
sketch7.addGeometry(Part.LineSegment(V(-31.1, 6.7, 0), V(-26.1, 10.9, 0)), False)
sketch7.addGeometry(Part.LineSegment(V(-26.1, 10.9, 0), V(-26.1, 19.8, 0)), False)
sketch7.addGeometry(Part.LineSegment(V(-26.1, 19.8, 0), V(-9.9, 19.8, 0)), False)
sketch7.addConstraint(Sketcher.Constraint("Coincident", 0, 2, 1, 1))
sketch7.addConstraint(Sketcher.Constraint("Coincident", 1, 2, 2, 1))
sketch7.addConstraint(Sketcher.Constraint("Coincident", 2, 2, 3, 1))
sketch7.addConstraint(Sketcher.Constraint("Coincident", 3, 2, 4, 1))
sketch7.addConstraint(Sketcher.Constraint("Coincident", 4, 2, 0, 1))
sketch7.addConstraint(Sketcher.Constraint("Coincident", 5, 2, 6, 1))
sketch7.addConstraint(Sketcher.Constraint("Coincident", 6, 2, 7, 1))
sketch7.addConstraint(Sketcher.Constraint("Coincident", 7, 2, 8, 1))
sketch7.addConstraint(Sketcher.Constraint("Coincident", 8, 2, 9, 1))
sketch7.addConstraint(Sketcher.Constraint("Coincident", 9, 2, 10, 1))
sketch7.addConstraint(Sketcher.Constraint("Coincident", 10, 2, 5, 1))
sketch7.addConstraint(Sketcher.Constraint("Horizontal", 0))
sketch7.addConstraint(Sketcher.Constraint("Horizontal", 3))
sketch7.addConstraint(Sketcher.Constraint("Vertical", 4))
sketch7.addConstraint(Sketcher.Constraint("Vertical", 5))
sketch7.addConstraint(Sketcher.Constraint("Horizontal", 6))
sketch7.addConstraint(Sketcher.Constraint("Vertical", 7))
sketch7.addConstraint(Sketcher.Constraint("Vertical", 9))
sketch7.addConstraint(Sketcher.Constraint("Horizontal", 10))
sketch7.addConstraint(Sketcher.Constraint("Perpendicular", 1, 2))
sketch7.addConstraint(Sketcher.Constraint("Vertical", 0, 2, 2, 2))
sketch7.addConstraint(Sketcher.Constraint("Equal", 1, 2))
sketch7.addConstraint(Sketcher.Constraint("DistanceX", 0, 1, 0, 2, Q("11 mm")))
sketch7.addConstraint(Sketcher.Constraint("DistanceY", 4, 1, 4, 2, Q("5 mm")))
sketch7.addConstraint(Sketcher.Constraint("DistanceX", 10, 1, 10, 2, Q("16.2 mm")))
sketch7.addConstraint(Sketcher.Constraint("DistanceY", 5, 2, 5, 1, Q("14.6 mm")))
sketch7.addConstraint(Sketcher.Constraint("DistanceY", 7, 1, 7, 2, Q("1.5 mm")))
sketch7.addConstraint(Sketcher.Constraint("DistanceX", 7, 2, 8, 2, Q("5 mm")))
sketch7.addConstraint(Sketcher.Constraint("DistanceY", -1, 1, 1, 2, Q("6.5 mm")))
sketch7.addConstraint(Sketcher.Constraint("DistanceY", -1, 1, 5, 2, Q("5.2 mm")))
sketch7.addConstraint(Sketcher.Constraint("Angle", 8, Q("40 deg")))
sketch7.addConstraint(Sketcher.Constraint("DistanceX", 5, 2, -1, 1, Q("9.9 mm")))
sketch7.addConstraint(Sketcher.Constraint("DistanceX", 0, 2, -1, 1, Q("49.25 mm")))
pocket4 = body.newObject("PartDesign::Pocket", "Pocket003")
pocket4.Profile = sketch7
pocket4.Length = 1.2
pocket4.Reversed = True

sketch8 = body.newObject("Sketcher::SketchObject", "Sketch007")
sketch8.AttachmentSupport = (doc.getObject("XZ_Plane"), [""])
sketch8.MapMode = "FlatFace"
sketch8.AttachmentOffset = App.Placement(V(0, 0, 44.2), App.Rotation())
sketch8.addGeometry(Part.LineSegment(V(-4, 26, 0), V(-60, 26, 0)), False)
sketch8.addGeometry(Part.LineSegment(V(-60, 26, 0), V(-60, 6, 0)), False)
sketch8.addGeometry(Part.LineSegment(V(-60, 6, 0), V(-4, 6, 0)), False)
sketch8.addGeometry(Part.LineSegment(V(-4, 6, 0), V(-4, 26, 0)), False)
sketch8.addConstraint(Sketcher.Constraint("Coincident", 0, 2, 1, 1))
sketch8.addConstraint(Sketcher.Constraint("Coincident", 1, 2, 2, 1))
sketch8.addConstraint(Sketcher.Constraint("Coincident", 2, 2, 3, 1))
sketch8.addConstraint(Sketcher.Constraint("Coincident", 3, 2, 0, 1))
sketch8.addConstraint(Sketcher.Constraint("Horizontal", 0))
sketch8.addConstraint(Sketcher.Constraint("Vertical", 1))
sketch8.addConstraint(Sketcher.Constraint("Horizontal", 2))
sketch8.addConstraint(Sketcher.Constraint("Vertical", 3))
sketch8.addConstraint(Sketcher.Constraint("DistanceY", 1, 2, 1, 1, Q("20 mm")))
sketch8.addConstraint(Sketcher.Constraint("DistanceX", 0, 2, 0, 1, Q("56.75 mm")))
sketch8.addConstraint(Sketcher.Constraint("DistanceY", -1, 1, 0, 2, Q("25.6 mm")))
sketch8.addConstraint(Sketcher.Constraint("DistanceX", 2, 2, -1, 1, Q("3.5 mm")))
pocket5 = body.newObject("PartDesign::Pocket", "Pocket004")
pocket5.Profile = sketch8
pocket5.Length = 1.2
doc.recompute()

fillet2 = body.newObject("PartDesign::Fillet", "Fillet001")
fillet2.Base = (pocket5, edges_at(pocket5, [
    (-68.45, -44.2, 12.8),
    (-68.45, 44.2, 12.8),
    (68.45, -44.2, 12.8),
    (68.45, 44.2, 12.8),
    (67.25, 43, 24.7),
    (67.25, -43, 24.7),
    (-67.25, -43, 24.7),
    (-67.25, 43, 24.7),
]))
fillet2.Radius = 3
doc.recompute()

fillet3 = body.newObject("PartDesign::Fillet", "Fillet002")
fillet3.Base = (fillet2, edges_at(fillet2, [
    (-26.1, 43.6, 10.896),
    (-49.25, 43.6, 9),
    (-49.25, 43.6, 4),
    (-46.75, 43.6, 6.5),
    (-60.25, 43.6, 9),
    (-60.25, 43.6, 4),
]))
fillet3.Radius = 1

doc.recompute()
